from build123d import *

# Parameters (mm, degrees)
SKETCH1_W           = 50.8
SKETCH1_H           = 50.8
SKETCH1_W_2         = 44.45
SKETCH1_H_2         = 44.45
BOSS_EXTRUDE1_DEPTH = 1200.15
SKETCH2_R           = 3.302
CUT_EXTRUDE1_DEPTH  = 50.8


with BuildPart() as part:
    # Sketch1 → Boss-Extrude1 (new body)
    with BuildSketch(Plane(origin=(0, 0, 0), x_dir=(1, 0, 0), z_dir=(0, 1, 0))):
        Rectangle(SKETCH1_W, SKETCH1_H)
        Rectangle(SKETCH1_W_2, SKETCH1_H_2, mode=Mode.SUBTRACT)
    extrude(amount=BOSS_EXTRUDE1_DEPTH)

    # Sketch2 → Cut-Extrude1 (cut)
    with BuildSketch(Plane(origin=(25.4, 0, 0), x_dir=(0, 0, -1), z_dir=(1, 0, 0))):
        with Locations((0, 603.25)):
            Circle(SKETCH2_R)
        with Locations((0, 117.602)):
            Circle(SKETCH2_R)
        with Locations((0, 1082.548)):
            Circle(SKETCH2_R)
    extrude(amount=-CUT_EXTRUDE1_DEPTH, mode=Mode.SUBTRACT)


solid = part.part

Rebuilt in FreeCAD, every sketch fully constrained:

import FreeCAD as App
import Part
import Sketcher

V = App.Vector
Q = App.Units.Quantity


def add_polygon(sketch, points):
    """Adds a closed chain of lines whose ends are joined by coincident constraints."""
    first, n = sketch.GeometryCount, len(points)
    for a, b in zip(points, points[1:] + points[:1]):
        sketch.addGeometry(Part.LineSegment(App.Vector(*a, 0), App.Vector(*b, 0)), False)
    for i in range(n):
        sketch.addConstraint(Sketcher.Constraint("Coincident", first + i, 2, first + (i + 1) % n, 1))

doc = App.newDocument("Part")
body = doc.addObject("PartDesign::Body", "Body")

# Sketch on XZ plane
sketch1 = body.newObject("Sketcher::SketchObject", "Sketch")
sketch1.AttachmentSupport = (doc.getObject("XZ_Plane"), [""])
sketch1.MapMode = "FlatFace"
add_polygon(sketch1, [(-25.4, -25.4), (-25.4, 25.4), (25.4, 25.4), (25.4, -25.4)])  # lines 0-3
add_polygon(sketch1, [(22.225, 22.225), (-22.225, 22.225), (-22.225, -22.225), (22.225, -22.225)])  # lines 4-7
sketch1.addConstraint([
    Sketcher.Constraint("Vertical", 0),
    Sketcher.Constraint("Horizontal", 1),
    Sketcher.Constraint("Vertical", 2),
    Sketcher.Constraint("Horizontal", 3),
    Sketcher.Constraint("Horizontal", 4),
    Sketcher.Constraint("Vertical", 5),
    Sketcher.Constraint("Horizontal", 6),
    Sketcher.Constraint("Vertical", 7),
    Sketcher.Constraint("Symmetric", 0, 2, 2, 2, -1, 1),
    Sketcher.Constraint("Symmetric", 4, 2, 6, 2, -1, 1),
    Sketcher.Constraint("Equal", 3, 0),
    Sketcher.Constraint("Equal", 6, 5),
    Sketcher.Constraint("DistanceX", 1, 1, 1, 2, Q("2 in")),
    Sketcher.Constraint("DistanceX", 4, 2, 4, 1, Q("1.75 in")),
])
pad1 = body.newObject("PartDesign::Pad", "Pad")
pad1.Profile = sketch1
pad1.Length = Q("47.25 in")
pad1.Reversed = True

# Sketch on YZ plane
sketch2 = body.newObject("Sketcher::SketchObject", "Sketch001")
sketch2.AttachmentSupport = (doc.getObject("YZ_Plane"), [""])
sketch2.MapMode = "FlatFace"
sketch2.AttachmentOffset = App.Placement(V(0, 0, 1 * 25.4), App.Rotation())
sketch2.addGeometry([
    Part.Circle(V(603.25, 0, 0), V(0, 0, 1), 3.302),
    Part.Circle(V(117.602, 0, 0), V(0, 0, 1), 3.302),
    Part.Circle(V(1082.548, 0, 0), V(0, 0, 1), 3.302),
], False)
sketch2.addConstraint([
    Sketcher.Constraint("Equal", 0, 1),
    Sketcher.Constraint("Equal", 1, 2),
    Sketcher.Constraint("PointOnObject", 0, 3, -1),
    Sketcher.Constraint("PointOnObject", 1, 3, -1),
    Sketcher.Constraint("PointOnObject", 2, 3, -1),
    Sketcher.Constraint("Diameter", 0, Q("0.26 in")),
    Sketcher.Constraint("DistanceX", -1, 1, 0, 3, Q("23.75 in")),
    Sketcher.Constraint("DistanceX", -1, 1, 1, 3, Q("4.63 in")),
    Sketcher.Constraint("DistanceX", -1, 1, 2, 3, Q("42.62 in")),
])
pocket1 = body.newObject("PartDesign::Pocket", "Pocket")
pocket1.Profile = sketch2
pocket1.Length = Q("2 in")

doc.recompute()
